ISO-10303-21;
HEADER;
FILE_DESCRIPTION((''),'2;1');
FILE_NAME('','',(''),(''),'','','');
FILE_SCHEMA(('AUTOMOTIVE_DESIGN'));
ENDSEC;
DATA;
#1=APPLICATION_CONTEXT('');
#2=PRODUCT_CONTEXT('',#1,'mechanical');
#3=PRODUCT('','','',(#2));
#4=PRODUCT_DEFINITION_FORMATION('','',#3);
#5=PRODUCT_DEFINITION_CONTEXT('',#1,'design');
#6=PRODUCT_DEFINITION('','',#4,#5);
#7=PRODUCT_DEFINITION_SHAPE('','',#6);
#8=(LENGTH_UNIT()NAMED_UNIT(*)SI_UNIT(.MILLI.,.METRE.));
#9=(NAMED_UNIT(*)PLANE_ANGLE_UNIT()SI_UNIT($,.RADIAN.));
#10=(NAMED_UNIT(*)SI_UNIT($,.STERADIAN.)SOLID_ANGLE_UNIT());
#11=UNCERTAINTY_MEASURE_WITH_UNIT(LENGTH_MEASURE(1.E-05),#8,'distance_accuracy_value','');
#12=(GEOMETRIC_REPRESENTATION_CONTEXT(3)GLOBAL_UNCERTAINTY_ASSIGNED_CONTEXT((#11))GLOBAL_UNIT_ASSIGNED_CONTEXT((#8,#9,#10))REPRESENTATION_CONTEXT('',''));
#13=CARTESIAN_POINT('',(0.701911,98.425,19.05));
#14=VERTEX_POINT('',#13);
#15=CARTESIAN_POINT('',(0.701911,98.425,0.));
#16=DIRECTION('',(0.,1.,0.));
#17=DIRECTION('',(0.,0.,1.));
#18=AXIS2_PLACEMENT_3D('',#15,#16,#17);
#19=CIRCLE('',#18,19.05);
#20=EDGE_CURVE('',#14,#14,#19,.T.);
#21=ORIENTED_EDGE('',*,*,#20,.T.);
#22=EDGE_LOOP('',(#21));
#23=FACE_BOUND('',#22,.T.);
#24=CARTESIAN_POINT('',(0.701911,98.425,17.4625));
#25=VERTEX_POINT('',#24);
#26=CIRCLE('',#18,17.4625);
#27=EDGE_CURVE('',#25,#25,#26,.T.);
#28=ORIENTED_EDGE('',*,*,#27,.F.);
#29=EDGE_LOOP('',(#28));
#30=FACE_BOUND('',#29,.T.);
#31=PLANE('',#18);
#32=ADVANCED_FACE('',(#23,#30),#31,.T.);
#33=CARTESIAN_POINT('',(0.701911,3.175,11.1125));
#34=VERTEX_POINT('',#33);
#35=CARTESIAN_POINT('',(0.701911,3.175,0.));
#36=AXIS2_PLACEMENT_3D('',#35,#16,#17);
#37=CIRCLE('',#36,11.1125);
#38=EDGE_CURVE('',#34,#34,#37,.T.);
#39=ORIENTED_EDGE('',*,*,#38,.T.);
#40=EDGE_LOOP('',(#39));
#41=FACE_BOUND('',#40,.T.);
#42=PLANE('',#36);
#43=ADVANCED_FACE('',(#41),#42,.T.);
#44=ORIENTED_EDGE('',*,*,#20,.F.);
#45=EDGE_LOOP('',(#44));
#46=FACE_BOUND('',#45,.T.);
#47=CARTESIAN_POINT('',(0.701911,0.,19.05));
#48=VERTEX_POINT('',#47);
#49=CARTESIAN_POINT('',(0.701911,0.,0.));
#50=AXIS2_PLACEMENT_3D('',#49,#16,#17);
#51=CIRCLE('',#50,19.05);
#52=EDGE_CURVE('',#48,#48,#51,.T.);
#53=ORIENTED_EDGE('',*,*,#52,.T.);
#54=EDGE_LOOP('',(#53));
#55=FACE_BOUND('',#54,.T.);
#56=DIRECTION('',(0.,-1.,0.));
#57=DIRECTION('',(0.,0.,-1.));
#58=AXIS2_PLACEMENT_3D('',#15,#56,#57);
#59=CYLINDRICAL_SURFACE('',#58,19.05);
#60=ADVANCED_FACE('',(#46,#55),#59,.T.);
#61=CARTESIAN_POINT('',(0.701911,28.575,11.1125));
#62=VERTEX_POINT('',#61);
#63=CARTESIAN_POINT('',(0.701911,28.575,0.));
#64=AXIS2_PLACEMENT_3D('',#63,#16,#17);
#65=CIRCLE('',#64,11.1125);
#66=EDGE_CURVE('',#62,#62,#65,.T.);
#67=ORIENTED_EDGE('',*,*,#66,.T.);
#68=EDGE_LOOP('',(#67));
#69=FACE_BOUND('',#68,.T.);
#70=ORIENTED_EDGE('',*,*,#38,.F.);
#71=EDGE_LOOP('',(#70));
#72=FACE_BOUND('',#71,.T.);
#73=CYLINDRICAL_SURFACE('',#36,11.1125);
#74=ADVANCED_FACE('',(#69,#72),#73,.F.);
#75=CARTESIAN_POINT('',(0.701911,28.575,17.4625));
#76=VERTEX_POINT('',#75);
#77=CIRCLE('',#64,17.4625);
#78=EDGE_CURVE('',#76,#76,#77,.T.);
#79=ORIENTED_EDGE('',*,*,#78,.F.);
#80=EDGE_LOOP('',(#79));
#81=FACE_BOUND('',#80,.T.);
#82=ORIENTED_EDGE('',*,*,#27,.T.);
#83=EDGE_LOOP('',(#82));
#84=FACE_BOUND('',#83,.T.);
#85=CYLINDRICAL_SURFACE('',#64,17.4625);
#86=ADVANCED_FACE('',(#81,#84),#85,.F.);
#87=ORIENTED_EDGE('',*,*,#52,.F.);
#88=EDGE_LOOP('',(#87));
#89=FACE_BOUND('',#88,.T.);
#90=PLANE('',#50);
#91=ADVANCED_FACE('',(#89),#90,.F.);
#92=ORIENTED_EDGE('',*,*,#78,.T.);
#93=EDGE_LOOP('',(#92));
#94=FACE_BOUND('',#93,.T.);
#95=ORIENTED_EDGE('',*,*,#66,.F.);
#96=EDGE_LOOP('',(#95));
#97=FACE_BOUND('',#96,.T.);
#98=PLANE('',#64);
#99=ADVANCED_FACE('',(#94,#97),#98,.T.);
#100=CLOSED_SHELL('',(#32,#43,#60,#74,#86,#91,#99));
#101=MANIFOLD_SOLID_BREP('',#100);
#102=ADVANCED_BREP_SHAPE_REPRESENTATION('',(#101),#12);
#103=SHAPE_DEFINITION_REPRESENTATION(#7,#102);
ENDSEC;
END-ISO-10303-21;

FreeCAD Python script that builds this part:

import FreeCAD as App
import Part
import Sketcher
from FreeCAD import Vector
Q = App.Units.Quantity

doc = App.newDocument("Part")
body = doc.addObject("PartDesign::Body", "Body")

sketch1 = doc.addObject("Sketcher::SketchObject", "Sketch")
body.addObject(sketch1)
sketch1.AttachmentSupport = (doc.XZ_Plane, [""])
sketch1.MapMode = "FlatFace"
sketch1.addGeometry(Part.Circle(Vector(1, 0, 0), Vector(0, 0, 1), 19), False)
sketch1.addConstraint([
    Sketcher.Constraint("PointOnObject", 0, 3, -1),
    Sketcher.Constraint("Diameter", 0, Q("1.5 in")),
    Sketcher.Constraint("DistanceX", -1, 1, 0, 3, Q("0.701911 mm")),
])
pad1 = doc.addObject("PartDesign::Pad", "Pad")
body.addObject(pad1)
pad1.Profile = sketch1
pad1.Length = Q("3.875 in")
pad1.Reversed = True

sketch2 = doc.addObject("Sketcher::SketchObject", "Sketch001")
body.addObject(sketch2)
sketch2.AttachmentSupport = (doc.XZ_Plane, [""])
sketch2.MapMode = "FlatFace"
sketch2.AttachmentOffset = App.Placement(Vector(0, 0, -3.875 * 25.4), App.Rotation())
sketch2.addGeometry(Part.Circle(Vector(1, 0, 0), Vector(0, 0, 1), 17), False)
sketch2.addConstraint([
    Sketcher.Constraint("PointOnObject", 0, 3, -1),
    Sketcher.Constraint("Diameter", 0, Q("1.375 in")),
    Sketcher.Constraint("DistanceX", -1, 1, 0, 3, Q("0.701911 mm")),
])
pocket1 = doc.addObject("PartDesign::Pocket", "Pocket")
body.addObject(pocket1)
pocket1.Profile = sketch2
pocket1.Length = Q("2.75 in")
pocket1.Reversed = True

sketch3 = doc.addObject("Sketcher::SketchObject", "Sketch002")
body.addObject(sketch3)
sketch3.AttachmentSupport = (doc.XZ_Plane, [""])
sketch3.MapMode = "FlatFace"
sketch3.AttachmentOffset = App.Placement(Vector(0, 0, -1.125 * 25.4), App.Rotation())
sketch3.addGeometry(Part.Circle(Vector(1, 0, 0), Vector(0, 0, 1), 11), False)
sketch3.addConstraint([
    Sketcher.Constraint("PointOnObject", 0, 3, -1),
    Sketcher.Constraint("Diameter", 0, Q("0.875 in")),
    Sketcher.Constraint("DistanceX", -1, 1, 0, 3, Q("0.701911 mm")),
])
pocket2 = doc.addObject("PartDesign::Pocket", "Pocket001")
body.addObject(pocket2)
pocket2.Profile = sketch3
pocket2.Length = Q("1 in")
pocket2.Reversed = True

doc.recompute()
